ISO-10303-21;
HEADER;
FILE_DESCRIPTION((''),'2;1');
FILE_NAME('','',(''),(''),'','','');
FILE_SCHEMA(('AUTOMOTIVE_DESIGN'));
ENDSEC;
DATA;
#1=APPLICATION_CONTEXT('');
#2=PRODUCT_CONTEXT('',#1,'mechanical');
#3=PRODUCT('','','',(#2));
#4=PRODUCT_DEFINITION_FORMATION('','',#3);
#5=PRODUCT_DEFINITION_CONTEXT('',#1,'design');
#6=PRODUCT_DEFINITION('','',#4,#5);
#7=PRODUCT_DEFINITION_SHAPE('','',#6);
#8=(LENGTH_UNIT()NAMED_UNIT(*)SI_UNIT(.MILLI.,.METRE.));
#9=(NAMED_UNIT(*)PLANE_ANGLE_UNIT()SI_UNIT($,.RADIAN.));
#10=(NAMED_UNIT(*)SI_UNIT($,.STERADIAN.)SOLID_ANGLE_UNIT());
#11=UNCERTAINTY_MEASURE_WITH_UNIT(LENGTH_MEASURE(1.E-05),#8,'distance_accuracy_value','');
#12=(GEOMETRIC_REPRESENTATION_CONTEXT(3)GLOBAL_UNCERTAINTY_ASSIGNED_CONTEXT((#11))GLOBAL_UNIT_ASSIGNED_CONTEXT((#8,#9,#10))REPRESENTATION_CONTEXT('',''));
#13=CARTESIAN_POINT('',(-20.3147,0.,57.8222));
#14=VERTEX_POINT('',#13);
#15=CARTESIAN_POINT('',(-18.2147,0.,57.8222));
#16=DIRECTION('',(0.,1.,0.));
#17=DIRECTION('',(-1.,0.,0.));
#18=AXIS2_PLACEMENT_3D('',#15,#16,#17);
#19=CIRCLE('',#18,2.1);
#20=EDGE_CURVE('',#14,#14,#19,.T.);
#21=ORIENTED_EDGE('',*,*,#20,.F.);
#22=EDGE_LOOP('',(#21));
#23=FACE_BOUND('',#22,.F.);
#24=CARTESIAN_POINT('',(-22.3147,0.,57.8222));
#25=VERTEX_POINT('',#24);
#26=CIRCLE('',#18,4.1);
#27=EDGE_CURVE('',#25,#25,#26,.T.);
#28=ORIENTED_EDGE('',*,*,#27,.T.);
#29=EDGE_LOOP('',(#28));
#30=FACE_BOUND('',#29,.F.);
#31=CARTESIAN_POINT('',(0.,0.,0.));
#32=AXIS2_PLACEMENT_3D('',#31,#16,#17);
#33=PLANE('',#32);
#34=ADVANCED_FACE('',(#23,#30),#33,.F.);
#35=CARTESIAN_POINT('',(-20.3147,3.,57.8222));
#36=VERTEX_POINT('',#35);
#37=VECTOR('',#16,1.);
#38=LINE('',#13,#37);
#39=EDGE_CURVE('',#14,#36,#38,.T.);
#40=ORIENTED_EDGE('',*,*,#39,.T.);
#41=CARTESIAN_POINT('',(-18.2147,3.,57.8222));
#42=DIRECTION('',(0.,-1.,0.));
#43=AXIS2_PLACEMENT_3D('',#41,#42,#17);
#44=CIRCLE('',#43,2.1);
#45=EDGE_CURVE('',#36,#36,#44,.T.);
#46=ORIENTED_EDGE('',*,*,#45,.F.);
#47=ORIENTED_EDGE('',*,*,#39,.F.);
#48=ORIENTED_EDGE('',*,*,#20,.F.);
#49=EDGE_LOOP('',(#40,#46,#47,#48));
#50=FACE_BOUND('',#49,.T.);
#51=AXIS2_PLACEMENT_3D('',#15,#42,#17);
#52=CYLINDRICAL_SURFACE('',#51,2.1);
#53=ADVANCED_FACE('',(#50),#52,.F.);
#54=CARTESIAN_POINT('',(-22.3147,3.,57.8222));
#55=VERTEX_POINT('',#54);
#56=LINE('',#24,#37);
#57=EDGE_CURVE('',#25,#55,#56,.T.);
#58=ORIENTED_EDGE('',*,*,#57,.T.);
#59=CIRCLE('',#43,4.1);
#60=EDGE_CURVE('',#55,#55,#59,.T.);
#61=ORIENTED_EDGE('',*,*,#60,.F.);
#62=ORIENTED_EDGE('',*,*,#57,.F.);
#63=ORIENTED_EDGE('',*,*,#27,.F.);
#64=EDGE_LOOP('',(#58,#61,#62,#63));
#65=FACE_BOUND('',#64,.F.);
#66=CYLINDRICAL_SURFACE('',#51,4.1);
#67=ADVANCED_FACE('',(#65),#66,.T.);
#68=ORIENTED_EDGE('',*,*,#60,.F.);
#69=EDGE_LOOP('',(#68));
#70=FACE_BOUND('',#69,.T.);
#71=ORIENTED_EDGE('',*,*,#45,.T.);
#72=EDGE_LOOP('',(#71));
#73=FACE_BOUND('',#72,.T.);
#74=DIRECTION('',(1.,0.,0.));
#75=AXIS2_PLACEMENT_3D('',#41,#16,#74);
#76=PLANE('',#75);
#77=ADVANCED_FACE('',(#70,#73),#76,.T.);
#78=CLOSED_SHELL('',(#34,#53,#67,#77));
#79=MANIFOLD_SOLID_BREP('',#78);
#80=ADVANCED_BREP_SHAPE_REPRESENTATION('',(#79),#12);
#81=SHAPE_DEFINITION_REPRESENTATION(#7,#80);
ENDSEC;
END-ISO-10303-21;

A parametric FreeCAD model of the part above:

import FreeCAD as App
import Part
import Sketcher

doc = App.newDocument("Part")
params = doc.addObject("Spreadsheet::Sheet", "Params")
for row, (alias, value) in enumerate([
    ("sketch1_diameter", "4.2 mm"),
    ("sketch1_diameter2", "8.2 mm"),
    ("pad1_length", "3.175 mm"),
    ("pocket1_length", "0.175 mm"),
], start=1):
    params.set(f"A{row}", alias)
    params.set(f"B{row}", "=" + value)
    params.setAlias(f"B{row}", alias)

body = doc.addObject("PartDesign::Body", "Body")

sketch1 = body.newObject("Sketcher::SketchObject", "Sketch")
sketch1.AttachmentSupport = (doc.getObject("XZ_Plane"), [""])
sketch1.MapMode = "FlatFace"
sketch1.addGeometry(Part.Circle(App.Vector(-18.2, 57.8, 0), App.Vector(0, 0, 1), 4.1), False)
sketch1.addGeometry(Part.Circle(App.Vector(-18.2, 57.8, 0), App.Vector(0, 0, 1), 2.1), False)
sketch1.addConstraint(Sketcher.Constraint("Coincident", 1, 3, 0, 3))
sketch1.addConstraint(Sketcher.Constraint("Diameter", 1, 4.2))
sketch1.addConstraint(Sketcher.Constraint("Diameter", 0, 8.2))
sketch1.addConstraint(Sketcher.Constraint("DistanceX", 0, 3, -1, 1, 18.2147))
sketch1.addConstraint(Sketcher.Constraint("DistanceY", -1, 1, 0, 3, 57.8222))
sketch1.setExpression("Constraints[1]", "Params.sketch1_diameter")
sketch1.setExpression("Constraints[2]", "Params.sketch1_diameter2")
pad1 = body.newObject("PartDesign::Pad", "Pad")
pad1.Profile = sketch1
pad1.setExpression("Length", "Params.pad1_length")
pad1.Reversed = True

sketch2 = body.newObject("Sketcher::SketchObject", "Sketch001")
sketch2.AttachmentSupport = (doc.getObject("XZ_Plane"), [""])
sketch2.MapMode = "FlatFace"
sketch2.AttachmentOffset = App.Placement(App.Vector(0, 0, -3.175), App.Rotation())
sketch2.addGeometry(Part.LineSegment(App.Vector(-14, 54, 0), App.Vector(-23, 54, 0)), False)
sketch2.addGeometry(Part.LineSegment(App.Vector(-23, 54, 0), App.Vector(-23, 62, 0)), False)
sketch2.addGeometry(Part.LineSegment(App.Vector(-23, 62, 0), App.Vector(-14, 62, 0)), False)
sketch2.addGeometry(Part.LineSegment(App.Vector(-14, 62, 0), App.Vector(-14, 54, 0)), False)
sketch2.addConstraint(Sketcher.Constraint("Coincident", 0, 2, 1, 1))
sketch2.addConstraint(Sketcher.Constraint("Coincident", 1, 2, 2, 1))
sketch2.addConstraint(Sketcher.Constraint("Coincident", 2, 2, 3, 1))
sketch2.addConstraint(Sketcher.Constraint("Coincident", 3, 2, 0, 1))
sketch2.addConstraint(Sketcher.Constraint("Horizontal", 0))
sketch2.addConstraint(Sketcher.Constraint("Vertical", 1))
sketch2.addConstraint(Sketcher.Constraint("Horizontal", 2))
sketch2.addConstraint(Sketcher.Constraint("Vertical", 3))
sketch2.addConstraint(Sketcher.Constraint("DistanceX", 0, 2, 0, 1, 8.4995))
sketch2.addConstraint(Sketcher.Constraint("DistanceY", 1, 1, 1, 2, 8.4676))
sketch2.addConstraint(Sketcher.Constraint("DistanceY", -1, 1, 0, 2, 53.577))
sketch2.addConstraint(Sketcher.Constraint("DistanceX", 2, 2, -1, 1, 14.007))
pocket1 = body.newObject("PartDesign::Pocket", "Pocket")
pocket1.Profile = sketch2
pocket1.setExpression("Length", "Params.pocket1_length")
pocket1.Reversed = True

doc.recompute()
